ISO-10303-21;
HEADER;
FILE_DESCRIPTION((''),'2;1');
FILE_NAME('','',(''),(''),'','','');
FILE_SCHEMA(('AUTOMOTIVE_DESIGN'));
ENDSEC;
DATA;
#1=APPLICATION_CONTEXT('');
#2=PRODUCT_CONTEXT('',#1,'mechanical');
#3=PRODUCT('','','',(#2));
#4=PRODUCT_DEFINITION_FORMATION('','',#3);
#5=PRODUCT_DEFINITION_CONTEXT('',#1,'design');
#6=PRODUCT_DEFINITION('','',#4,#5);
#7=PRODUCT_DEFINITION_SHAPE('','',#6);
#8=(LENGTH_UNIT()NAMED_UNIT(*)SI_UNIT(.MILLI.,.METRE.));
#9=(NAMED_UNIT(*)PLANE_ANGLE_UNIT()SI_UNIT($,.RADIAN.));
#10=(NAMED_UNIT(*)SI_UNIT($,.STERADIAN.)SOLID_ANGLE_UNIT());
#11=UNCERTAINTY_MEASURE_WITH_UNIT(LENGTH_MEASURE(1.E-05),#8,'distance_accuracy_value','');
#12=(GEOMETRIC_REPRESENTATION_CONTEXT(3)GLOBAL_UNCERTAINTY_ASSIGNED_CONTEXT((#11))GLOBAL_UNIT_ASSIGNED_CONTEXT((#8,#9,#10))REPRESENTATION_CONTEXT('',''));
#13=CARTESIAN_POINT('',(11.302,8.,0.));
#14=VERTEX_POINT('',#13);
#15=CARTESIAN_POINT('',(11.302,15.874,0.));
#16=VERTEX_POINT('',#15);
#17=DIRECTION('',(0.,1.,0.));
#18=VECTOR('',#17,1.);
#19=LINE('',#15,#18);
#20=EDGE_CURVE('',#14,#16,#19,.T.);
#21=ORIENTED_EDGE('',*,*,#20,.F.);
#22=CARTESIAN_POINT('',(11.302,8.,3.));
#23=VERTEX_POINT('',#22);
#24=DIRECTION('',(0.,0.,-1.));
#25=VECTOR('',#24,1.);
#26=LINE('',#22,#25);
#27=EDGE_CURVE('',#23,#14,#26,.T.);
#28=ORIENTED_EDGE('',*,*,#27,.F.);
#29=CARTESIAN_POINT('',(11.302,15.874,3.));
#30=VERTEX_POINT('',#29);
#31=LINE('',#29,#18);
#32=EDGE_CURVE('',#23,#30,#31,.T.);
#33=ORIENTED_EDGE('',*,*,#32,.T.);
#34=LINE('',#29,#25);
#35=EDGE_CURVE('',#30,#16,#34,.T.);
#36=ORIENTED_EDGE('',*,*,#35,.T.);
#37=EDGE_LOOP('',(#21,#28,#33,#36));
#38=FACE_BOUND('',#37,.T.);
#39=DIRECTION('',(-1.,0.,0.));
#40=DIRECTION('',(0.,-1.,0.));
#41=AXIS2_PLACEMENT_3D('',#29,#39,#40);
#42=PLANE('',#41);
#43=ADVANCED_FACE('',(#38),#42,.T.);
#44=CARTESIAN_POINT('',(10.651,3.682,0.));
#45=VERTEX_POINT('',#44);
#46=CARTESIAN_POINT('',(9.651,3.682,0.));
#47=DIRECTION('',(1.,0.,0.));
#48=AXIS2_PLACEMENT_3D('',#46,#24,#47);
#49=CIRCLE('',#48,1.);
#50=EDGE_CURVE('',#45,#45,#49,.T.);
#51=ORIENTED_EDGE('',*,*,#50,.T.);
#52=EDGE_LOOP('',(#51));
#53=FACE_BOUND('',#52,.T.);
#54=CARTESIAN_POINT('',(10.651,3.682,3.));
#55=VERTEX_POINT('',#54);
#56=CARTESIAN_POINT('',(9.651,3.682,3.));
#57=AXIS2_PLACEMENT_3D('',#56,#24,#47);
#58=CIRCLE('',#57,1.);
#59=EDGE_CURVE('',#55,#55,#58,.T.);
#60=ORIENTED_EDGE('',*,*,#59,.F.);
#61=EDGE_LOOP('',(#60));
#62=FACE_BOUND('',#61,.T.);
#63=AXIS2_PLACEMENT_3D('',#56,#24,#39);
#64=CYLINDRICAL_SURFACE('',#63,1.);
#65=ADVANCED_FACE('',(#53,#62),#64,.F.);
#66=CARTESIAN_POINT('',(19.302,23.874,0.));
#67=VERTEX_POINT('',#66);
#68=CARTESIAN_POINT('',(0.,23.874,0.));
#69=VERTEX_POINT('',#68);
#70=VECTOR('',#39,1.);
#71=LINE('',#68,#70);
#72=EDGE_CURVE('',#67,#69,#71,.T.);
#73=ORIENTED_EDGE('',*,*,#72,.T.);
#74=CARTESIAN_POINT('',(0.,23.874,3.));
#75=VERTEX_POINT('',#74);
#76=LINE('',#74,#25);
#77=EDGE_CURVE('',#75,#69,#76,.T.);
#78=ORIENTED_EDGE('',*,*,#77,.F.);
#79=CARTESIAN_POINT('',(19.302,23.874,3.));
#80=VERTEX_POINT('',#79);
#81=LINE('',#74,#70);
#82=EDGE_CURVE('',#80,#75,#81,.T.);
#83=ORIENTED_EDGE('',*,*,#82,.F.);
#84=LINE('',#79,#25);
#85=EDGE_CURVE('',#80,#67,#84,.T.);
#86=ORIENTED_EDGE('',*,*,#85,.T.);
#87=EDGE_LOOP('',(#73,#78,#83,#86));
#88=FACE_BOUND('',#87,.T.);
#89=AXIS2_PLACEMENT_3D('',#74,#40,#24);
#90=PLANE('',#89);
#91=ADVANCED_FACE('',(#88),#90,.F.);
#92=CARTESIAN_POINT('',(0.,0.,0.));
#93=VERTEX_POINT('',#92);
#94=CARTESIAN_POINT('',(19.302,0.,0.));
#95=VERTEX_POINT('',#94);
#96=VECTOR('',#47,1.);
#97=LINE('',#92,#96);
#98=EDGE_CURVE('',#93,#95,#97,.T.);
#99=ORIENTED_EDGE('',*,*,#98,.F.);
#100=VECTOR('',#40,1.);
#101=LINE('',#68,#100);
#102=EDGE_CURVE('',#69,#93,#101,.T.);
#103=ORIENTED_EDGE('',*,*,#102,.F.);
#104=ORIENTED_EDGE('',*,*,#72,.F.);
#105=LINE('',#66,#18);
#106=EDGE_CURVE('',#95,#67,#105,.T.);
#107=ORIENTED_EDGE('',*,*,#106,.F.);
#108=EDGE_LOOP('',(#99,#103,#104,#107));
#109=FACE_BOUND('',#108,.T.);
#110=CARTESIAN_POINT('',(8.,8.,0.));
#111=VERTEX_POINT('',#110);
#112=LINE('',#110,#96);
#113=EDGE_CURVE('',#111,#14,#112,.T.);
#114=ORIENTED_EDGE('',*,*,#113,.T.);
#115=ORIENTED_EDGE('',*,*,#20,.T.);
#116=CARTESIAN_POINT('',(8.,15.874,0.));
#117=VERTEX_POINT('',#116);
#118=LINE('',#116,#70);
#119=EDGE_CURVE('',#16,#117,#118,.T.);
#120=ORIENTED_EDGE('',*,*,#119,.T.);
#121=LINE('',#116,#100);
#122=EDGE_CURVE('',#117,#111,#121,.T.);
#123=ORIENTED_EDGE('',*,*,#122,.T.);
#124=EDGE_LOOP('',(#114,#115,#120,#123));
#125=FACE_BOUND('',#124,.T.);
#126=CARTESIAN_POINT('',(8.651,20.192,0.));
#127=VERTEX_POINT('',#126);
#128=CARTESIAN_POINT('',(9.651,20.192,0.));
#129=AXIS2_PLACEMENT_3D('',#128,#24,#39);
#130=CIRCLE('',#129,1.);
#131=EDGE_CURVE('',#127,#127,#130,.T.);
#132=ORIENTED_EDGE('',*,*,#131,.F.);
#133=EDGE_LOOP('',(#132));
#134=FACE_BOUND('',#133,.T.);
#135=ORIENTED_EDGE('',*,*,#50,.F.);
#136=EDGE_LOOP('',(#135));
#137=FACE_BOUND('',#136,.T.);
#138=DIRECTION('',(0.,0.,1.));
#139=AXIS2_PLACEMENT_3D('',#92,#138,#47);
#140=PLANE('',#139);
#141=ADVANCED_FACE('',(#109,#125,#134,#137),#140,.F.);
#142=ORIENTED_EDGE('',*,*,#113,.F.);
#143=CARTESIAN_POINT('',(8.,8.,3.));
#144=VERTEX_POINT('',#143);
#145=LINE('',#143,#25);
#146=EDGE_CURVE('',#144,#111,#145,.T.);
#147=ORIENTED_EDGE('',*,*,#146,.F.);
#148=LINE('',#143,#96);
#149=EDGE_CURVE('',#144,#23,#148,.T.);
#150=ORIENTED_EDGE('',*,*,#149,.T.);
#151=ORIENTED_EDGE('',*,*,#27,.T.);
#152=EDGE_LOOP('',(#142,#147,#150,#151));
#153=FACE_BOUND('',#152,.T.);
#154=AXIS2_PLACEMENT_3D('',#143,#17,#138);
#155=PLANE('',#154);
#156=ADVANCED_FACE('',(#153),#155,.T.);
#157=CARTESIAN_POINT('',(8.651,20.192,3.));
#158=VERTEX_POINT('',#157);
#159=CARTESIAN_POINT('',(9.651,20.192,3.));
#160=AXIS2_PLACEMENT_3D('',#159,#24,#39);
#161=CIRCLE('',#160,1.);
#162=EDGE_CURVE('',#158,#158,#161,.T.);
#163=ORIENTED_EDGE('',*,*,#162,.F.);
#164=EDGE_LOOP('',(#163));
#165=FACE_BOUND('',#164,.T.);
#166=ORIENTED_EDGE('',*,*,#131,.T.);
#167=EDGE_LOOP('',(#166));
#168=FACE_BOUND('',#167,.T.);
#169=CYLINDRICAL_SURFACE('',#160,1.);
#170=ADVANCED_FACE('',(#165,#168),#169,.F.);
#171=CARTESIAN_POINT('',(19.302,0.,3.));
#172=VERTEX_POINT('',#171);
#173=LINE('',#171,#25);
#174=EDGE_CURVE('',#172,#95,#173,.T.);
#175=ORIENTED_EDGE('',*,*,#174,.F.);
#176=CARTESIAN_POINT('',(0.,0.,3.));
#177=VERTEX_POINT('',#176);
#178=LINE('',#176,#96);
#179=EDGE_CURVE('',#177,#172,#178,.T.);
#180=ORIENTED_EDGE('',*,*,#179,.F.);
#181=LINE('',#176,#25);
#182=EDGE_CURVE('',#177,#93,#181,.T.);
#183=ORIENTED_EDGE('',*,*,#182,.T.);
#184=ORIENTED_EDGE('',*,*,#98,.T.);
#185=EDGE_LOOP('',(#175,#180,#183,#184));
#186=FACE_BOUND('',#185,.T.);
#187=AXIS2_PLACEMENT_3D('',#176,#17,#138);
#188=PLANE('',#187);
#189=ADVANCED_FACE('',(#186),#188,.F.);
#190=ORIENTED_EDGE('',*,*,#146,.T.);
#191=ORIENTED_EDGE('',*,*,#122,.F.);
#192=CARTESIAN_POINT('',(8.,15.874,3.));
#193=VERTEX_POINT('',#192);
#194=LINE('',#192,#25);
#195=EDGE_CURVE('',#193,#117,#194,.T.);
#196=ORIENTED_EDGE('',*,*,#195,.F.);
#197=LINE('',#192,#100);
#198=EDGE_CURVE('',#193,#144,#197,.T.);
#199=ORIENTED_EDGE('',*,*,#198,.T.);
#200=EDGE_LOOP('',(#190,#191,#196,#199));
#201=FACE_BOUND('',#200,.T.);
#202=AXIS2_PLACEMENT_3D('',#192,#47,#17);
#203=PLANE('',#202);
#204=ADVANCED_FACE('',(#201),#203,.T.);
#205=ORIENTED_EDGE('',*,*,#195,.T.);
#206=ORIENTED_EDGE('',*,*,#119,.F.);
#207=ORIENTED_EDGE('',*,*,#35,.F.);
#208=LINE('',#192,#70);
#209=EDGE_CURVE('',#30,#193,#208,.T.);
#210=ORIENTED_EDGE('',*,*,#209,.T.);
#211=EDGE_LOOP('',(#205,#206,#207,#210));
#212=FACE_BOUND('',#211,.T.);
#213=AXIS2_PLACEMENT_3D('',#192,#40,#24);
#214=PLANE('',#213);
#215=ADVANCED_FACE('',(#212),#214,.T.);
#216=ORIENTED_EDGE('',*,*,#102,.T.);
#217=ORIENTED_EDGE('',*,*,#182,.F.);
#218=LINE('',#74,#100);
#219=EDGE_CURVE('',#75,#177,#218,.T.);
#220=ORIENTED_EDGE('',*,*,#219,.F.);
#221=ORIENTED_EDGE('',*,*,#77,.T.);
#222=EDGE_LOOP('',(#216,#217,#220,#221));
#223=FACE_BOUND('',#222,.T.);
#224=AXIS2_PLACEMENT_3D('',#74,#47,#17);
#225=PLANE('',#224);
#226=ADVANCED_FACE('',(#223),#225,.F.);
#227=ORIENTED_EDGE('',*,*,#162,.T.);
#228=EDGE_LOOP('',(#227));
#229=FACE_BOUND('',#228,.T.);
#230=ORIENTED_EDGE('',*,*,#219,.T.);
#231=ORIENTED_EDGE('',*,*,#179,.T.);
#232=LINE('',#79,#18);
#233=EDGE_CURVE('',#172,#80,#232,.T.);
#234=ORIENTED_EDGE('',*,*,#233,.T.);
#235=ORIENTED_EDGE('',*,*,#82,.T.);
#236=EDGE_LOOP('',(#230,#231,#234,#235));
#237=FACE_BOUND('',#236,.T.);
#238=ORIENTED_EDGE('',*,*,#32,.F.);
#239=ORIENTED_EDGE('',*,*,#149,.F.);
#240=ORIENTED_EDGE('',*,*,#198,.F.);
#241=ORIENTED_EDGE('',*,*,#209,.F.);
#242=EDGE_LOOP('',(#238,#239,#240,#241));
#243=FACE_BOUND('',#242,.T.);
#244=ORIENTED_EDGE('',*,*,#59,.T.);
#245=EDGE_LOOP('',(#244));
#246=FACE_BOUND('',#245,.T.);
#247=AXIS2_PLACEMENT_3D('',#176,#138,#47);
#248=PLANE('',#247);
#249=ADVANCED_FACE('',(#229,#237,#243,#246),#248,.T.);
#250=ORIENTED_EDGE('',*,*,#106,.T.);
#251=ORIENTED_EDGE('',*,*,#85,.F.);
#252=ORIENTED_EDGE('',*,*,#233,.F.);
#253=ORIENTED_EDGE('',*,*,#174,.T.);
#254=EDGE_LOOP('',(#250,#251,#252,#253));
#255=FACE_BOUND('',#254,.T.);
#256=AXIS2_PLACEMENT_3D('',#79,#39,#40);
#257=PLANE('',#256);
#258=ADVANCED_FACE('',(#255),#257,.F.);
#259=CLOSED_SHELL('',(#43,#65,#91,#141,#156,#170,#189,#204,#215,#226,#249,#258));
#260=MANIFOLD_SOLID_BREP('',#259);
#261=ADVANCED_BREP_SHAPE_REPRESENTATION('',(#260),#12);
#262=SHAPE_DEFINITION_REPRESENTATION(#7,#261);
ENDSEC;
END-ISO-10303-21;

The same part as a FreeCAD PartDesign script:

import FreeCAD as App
import Part
import Sketcher

V = App.Vector
Q = App.Units.Quantity


def add_polygon(sketch, points):
    """Adds a closed chain of lines whose ends are joined by coincident constraints."""
    first, n = sketch.GeometryCount, len(points)
    for a, b in zip(points, points[1:] + points[:1]):
        sketch.addGeometry(Part.LineSegment(App.Vector(*a, 0), App.Vector(*b, 0)), False)
    for i in range(n):
        sketch.addConstraint(Sketcher.Constraint("Coincident", first + i, 2, first + (i + 1) % n, 1))

doc = App.newDocument("Part")
body = doc.addObject("PartDesign::Body", "Body")

sketch1 = body.newObject("Sketcher::SketchObject", "Sketch")
sketch1.AttachmentSupport = (doc.getObject("XY_Plane"), [""])
sketch1.MapMode = "FlatFace"
add_polygon(sketch1, [(0, 23.9), (0, 0), (19.3, 0), (19.3, 23.9)])
add_polygon(sketch1, [(11.3, 8), (8, 8), (8, 15.9), (11.3, 15.9)])
sketch1.addConstraint([
    Sketcher.Constraint("Vertical", 0),
    Sketcher.Constraint("Horizontal", 1),
    Sketcher.Constraint("Vertical", 2),
    Sketcher.Constraint("Horizontal", 3),
    Sketcher.Constraint("Horizontal", 4),
    Sketcher.Constraint("Vertical", 5),
    Sketcher.Constraint("Horizontal", 6),
    Sketcher.Constraint("Vertical", 7),
    Sketcher.Constraint("Coincident", 0, 2, -1, 1),
    Sketcher.Constraint("DistanceX", -1, 1, 4, 2, Q("8 mm")),
    Sketcher.Constraint("DistanceY", -1, 1, 4, 2, Q("8 mm")),
    Sketcher.Constraint("DistanceY", 5, 2, 3, 2, Q("8 mm")),
    Sketcher.Constraint("DistanceX", 6, 2, 2, 2, Q("8 mm")),
    Sketcher.Constraint("DistanceX", 1, 1, 1, 2, Q("19.302 mm")),
    Sketcher.Constraint("DistanceY", 0, 2, 0, 1, Q("23.874 mm")),
])
pad1 = body.newObject("PartDesign::Pad", "Pad")
pad1.Profile = sketch1
pad1.Length = 3

sketch2 = body.newObject("Sketcher::SketchObject", "Sketch001")
sketch2.AttachmentSupport = (doc.getObject("XY_Plane"), [""])
sketch2.MapMode = "FlatFace"
sketch2.addGeometry([
    Part.Circle(V(9.7, 20.2, 0), V(0, 0, 1), 1),
    Part.Circle(V(9.7, 3.7, 0), V(0, 0, 1), 1),
], False)
sketch2.addConstraint([
    Sketcher.Constraint("Equal", 0, 1),
    Sketcher.Constraint("Vertical", 0, 3, 1, 3),
    Sketcher.Constraint("Diameter", 0, Q("2 mm")),
    Sketcher.Constraint("DistanceY", 1, 3, 0, 3, Q("16.51 mm")),
    Sketcher.Constraint("DistanceX", -1, 1, 0, 3, Q("9.651 mm")),
    Sketcher.Constraint("DistanceY", -1, 1, 0, 3, Q("20.192 mm")),
])
pocket1 = body.newObject("PartDesign::Pocket", "Pocket")
pocket1.Profile = sketch2
pocket1.Type = "ThroughAll"
pocket1.Reversed = True

doc.recompute()
